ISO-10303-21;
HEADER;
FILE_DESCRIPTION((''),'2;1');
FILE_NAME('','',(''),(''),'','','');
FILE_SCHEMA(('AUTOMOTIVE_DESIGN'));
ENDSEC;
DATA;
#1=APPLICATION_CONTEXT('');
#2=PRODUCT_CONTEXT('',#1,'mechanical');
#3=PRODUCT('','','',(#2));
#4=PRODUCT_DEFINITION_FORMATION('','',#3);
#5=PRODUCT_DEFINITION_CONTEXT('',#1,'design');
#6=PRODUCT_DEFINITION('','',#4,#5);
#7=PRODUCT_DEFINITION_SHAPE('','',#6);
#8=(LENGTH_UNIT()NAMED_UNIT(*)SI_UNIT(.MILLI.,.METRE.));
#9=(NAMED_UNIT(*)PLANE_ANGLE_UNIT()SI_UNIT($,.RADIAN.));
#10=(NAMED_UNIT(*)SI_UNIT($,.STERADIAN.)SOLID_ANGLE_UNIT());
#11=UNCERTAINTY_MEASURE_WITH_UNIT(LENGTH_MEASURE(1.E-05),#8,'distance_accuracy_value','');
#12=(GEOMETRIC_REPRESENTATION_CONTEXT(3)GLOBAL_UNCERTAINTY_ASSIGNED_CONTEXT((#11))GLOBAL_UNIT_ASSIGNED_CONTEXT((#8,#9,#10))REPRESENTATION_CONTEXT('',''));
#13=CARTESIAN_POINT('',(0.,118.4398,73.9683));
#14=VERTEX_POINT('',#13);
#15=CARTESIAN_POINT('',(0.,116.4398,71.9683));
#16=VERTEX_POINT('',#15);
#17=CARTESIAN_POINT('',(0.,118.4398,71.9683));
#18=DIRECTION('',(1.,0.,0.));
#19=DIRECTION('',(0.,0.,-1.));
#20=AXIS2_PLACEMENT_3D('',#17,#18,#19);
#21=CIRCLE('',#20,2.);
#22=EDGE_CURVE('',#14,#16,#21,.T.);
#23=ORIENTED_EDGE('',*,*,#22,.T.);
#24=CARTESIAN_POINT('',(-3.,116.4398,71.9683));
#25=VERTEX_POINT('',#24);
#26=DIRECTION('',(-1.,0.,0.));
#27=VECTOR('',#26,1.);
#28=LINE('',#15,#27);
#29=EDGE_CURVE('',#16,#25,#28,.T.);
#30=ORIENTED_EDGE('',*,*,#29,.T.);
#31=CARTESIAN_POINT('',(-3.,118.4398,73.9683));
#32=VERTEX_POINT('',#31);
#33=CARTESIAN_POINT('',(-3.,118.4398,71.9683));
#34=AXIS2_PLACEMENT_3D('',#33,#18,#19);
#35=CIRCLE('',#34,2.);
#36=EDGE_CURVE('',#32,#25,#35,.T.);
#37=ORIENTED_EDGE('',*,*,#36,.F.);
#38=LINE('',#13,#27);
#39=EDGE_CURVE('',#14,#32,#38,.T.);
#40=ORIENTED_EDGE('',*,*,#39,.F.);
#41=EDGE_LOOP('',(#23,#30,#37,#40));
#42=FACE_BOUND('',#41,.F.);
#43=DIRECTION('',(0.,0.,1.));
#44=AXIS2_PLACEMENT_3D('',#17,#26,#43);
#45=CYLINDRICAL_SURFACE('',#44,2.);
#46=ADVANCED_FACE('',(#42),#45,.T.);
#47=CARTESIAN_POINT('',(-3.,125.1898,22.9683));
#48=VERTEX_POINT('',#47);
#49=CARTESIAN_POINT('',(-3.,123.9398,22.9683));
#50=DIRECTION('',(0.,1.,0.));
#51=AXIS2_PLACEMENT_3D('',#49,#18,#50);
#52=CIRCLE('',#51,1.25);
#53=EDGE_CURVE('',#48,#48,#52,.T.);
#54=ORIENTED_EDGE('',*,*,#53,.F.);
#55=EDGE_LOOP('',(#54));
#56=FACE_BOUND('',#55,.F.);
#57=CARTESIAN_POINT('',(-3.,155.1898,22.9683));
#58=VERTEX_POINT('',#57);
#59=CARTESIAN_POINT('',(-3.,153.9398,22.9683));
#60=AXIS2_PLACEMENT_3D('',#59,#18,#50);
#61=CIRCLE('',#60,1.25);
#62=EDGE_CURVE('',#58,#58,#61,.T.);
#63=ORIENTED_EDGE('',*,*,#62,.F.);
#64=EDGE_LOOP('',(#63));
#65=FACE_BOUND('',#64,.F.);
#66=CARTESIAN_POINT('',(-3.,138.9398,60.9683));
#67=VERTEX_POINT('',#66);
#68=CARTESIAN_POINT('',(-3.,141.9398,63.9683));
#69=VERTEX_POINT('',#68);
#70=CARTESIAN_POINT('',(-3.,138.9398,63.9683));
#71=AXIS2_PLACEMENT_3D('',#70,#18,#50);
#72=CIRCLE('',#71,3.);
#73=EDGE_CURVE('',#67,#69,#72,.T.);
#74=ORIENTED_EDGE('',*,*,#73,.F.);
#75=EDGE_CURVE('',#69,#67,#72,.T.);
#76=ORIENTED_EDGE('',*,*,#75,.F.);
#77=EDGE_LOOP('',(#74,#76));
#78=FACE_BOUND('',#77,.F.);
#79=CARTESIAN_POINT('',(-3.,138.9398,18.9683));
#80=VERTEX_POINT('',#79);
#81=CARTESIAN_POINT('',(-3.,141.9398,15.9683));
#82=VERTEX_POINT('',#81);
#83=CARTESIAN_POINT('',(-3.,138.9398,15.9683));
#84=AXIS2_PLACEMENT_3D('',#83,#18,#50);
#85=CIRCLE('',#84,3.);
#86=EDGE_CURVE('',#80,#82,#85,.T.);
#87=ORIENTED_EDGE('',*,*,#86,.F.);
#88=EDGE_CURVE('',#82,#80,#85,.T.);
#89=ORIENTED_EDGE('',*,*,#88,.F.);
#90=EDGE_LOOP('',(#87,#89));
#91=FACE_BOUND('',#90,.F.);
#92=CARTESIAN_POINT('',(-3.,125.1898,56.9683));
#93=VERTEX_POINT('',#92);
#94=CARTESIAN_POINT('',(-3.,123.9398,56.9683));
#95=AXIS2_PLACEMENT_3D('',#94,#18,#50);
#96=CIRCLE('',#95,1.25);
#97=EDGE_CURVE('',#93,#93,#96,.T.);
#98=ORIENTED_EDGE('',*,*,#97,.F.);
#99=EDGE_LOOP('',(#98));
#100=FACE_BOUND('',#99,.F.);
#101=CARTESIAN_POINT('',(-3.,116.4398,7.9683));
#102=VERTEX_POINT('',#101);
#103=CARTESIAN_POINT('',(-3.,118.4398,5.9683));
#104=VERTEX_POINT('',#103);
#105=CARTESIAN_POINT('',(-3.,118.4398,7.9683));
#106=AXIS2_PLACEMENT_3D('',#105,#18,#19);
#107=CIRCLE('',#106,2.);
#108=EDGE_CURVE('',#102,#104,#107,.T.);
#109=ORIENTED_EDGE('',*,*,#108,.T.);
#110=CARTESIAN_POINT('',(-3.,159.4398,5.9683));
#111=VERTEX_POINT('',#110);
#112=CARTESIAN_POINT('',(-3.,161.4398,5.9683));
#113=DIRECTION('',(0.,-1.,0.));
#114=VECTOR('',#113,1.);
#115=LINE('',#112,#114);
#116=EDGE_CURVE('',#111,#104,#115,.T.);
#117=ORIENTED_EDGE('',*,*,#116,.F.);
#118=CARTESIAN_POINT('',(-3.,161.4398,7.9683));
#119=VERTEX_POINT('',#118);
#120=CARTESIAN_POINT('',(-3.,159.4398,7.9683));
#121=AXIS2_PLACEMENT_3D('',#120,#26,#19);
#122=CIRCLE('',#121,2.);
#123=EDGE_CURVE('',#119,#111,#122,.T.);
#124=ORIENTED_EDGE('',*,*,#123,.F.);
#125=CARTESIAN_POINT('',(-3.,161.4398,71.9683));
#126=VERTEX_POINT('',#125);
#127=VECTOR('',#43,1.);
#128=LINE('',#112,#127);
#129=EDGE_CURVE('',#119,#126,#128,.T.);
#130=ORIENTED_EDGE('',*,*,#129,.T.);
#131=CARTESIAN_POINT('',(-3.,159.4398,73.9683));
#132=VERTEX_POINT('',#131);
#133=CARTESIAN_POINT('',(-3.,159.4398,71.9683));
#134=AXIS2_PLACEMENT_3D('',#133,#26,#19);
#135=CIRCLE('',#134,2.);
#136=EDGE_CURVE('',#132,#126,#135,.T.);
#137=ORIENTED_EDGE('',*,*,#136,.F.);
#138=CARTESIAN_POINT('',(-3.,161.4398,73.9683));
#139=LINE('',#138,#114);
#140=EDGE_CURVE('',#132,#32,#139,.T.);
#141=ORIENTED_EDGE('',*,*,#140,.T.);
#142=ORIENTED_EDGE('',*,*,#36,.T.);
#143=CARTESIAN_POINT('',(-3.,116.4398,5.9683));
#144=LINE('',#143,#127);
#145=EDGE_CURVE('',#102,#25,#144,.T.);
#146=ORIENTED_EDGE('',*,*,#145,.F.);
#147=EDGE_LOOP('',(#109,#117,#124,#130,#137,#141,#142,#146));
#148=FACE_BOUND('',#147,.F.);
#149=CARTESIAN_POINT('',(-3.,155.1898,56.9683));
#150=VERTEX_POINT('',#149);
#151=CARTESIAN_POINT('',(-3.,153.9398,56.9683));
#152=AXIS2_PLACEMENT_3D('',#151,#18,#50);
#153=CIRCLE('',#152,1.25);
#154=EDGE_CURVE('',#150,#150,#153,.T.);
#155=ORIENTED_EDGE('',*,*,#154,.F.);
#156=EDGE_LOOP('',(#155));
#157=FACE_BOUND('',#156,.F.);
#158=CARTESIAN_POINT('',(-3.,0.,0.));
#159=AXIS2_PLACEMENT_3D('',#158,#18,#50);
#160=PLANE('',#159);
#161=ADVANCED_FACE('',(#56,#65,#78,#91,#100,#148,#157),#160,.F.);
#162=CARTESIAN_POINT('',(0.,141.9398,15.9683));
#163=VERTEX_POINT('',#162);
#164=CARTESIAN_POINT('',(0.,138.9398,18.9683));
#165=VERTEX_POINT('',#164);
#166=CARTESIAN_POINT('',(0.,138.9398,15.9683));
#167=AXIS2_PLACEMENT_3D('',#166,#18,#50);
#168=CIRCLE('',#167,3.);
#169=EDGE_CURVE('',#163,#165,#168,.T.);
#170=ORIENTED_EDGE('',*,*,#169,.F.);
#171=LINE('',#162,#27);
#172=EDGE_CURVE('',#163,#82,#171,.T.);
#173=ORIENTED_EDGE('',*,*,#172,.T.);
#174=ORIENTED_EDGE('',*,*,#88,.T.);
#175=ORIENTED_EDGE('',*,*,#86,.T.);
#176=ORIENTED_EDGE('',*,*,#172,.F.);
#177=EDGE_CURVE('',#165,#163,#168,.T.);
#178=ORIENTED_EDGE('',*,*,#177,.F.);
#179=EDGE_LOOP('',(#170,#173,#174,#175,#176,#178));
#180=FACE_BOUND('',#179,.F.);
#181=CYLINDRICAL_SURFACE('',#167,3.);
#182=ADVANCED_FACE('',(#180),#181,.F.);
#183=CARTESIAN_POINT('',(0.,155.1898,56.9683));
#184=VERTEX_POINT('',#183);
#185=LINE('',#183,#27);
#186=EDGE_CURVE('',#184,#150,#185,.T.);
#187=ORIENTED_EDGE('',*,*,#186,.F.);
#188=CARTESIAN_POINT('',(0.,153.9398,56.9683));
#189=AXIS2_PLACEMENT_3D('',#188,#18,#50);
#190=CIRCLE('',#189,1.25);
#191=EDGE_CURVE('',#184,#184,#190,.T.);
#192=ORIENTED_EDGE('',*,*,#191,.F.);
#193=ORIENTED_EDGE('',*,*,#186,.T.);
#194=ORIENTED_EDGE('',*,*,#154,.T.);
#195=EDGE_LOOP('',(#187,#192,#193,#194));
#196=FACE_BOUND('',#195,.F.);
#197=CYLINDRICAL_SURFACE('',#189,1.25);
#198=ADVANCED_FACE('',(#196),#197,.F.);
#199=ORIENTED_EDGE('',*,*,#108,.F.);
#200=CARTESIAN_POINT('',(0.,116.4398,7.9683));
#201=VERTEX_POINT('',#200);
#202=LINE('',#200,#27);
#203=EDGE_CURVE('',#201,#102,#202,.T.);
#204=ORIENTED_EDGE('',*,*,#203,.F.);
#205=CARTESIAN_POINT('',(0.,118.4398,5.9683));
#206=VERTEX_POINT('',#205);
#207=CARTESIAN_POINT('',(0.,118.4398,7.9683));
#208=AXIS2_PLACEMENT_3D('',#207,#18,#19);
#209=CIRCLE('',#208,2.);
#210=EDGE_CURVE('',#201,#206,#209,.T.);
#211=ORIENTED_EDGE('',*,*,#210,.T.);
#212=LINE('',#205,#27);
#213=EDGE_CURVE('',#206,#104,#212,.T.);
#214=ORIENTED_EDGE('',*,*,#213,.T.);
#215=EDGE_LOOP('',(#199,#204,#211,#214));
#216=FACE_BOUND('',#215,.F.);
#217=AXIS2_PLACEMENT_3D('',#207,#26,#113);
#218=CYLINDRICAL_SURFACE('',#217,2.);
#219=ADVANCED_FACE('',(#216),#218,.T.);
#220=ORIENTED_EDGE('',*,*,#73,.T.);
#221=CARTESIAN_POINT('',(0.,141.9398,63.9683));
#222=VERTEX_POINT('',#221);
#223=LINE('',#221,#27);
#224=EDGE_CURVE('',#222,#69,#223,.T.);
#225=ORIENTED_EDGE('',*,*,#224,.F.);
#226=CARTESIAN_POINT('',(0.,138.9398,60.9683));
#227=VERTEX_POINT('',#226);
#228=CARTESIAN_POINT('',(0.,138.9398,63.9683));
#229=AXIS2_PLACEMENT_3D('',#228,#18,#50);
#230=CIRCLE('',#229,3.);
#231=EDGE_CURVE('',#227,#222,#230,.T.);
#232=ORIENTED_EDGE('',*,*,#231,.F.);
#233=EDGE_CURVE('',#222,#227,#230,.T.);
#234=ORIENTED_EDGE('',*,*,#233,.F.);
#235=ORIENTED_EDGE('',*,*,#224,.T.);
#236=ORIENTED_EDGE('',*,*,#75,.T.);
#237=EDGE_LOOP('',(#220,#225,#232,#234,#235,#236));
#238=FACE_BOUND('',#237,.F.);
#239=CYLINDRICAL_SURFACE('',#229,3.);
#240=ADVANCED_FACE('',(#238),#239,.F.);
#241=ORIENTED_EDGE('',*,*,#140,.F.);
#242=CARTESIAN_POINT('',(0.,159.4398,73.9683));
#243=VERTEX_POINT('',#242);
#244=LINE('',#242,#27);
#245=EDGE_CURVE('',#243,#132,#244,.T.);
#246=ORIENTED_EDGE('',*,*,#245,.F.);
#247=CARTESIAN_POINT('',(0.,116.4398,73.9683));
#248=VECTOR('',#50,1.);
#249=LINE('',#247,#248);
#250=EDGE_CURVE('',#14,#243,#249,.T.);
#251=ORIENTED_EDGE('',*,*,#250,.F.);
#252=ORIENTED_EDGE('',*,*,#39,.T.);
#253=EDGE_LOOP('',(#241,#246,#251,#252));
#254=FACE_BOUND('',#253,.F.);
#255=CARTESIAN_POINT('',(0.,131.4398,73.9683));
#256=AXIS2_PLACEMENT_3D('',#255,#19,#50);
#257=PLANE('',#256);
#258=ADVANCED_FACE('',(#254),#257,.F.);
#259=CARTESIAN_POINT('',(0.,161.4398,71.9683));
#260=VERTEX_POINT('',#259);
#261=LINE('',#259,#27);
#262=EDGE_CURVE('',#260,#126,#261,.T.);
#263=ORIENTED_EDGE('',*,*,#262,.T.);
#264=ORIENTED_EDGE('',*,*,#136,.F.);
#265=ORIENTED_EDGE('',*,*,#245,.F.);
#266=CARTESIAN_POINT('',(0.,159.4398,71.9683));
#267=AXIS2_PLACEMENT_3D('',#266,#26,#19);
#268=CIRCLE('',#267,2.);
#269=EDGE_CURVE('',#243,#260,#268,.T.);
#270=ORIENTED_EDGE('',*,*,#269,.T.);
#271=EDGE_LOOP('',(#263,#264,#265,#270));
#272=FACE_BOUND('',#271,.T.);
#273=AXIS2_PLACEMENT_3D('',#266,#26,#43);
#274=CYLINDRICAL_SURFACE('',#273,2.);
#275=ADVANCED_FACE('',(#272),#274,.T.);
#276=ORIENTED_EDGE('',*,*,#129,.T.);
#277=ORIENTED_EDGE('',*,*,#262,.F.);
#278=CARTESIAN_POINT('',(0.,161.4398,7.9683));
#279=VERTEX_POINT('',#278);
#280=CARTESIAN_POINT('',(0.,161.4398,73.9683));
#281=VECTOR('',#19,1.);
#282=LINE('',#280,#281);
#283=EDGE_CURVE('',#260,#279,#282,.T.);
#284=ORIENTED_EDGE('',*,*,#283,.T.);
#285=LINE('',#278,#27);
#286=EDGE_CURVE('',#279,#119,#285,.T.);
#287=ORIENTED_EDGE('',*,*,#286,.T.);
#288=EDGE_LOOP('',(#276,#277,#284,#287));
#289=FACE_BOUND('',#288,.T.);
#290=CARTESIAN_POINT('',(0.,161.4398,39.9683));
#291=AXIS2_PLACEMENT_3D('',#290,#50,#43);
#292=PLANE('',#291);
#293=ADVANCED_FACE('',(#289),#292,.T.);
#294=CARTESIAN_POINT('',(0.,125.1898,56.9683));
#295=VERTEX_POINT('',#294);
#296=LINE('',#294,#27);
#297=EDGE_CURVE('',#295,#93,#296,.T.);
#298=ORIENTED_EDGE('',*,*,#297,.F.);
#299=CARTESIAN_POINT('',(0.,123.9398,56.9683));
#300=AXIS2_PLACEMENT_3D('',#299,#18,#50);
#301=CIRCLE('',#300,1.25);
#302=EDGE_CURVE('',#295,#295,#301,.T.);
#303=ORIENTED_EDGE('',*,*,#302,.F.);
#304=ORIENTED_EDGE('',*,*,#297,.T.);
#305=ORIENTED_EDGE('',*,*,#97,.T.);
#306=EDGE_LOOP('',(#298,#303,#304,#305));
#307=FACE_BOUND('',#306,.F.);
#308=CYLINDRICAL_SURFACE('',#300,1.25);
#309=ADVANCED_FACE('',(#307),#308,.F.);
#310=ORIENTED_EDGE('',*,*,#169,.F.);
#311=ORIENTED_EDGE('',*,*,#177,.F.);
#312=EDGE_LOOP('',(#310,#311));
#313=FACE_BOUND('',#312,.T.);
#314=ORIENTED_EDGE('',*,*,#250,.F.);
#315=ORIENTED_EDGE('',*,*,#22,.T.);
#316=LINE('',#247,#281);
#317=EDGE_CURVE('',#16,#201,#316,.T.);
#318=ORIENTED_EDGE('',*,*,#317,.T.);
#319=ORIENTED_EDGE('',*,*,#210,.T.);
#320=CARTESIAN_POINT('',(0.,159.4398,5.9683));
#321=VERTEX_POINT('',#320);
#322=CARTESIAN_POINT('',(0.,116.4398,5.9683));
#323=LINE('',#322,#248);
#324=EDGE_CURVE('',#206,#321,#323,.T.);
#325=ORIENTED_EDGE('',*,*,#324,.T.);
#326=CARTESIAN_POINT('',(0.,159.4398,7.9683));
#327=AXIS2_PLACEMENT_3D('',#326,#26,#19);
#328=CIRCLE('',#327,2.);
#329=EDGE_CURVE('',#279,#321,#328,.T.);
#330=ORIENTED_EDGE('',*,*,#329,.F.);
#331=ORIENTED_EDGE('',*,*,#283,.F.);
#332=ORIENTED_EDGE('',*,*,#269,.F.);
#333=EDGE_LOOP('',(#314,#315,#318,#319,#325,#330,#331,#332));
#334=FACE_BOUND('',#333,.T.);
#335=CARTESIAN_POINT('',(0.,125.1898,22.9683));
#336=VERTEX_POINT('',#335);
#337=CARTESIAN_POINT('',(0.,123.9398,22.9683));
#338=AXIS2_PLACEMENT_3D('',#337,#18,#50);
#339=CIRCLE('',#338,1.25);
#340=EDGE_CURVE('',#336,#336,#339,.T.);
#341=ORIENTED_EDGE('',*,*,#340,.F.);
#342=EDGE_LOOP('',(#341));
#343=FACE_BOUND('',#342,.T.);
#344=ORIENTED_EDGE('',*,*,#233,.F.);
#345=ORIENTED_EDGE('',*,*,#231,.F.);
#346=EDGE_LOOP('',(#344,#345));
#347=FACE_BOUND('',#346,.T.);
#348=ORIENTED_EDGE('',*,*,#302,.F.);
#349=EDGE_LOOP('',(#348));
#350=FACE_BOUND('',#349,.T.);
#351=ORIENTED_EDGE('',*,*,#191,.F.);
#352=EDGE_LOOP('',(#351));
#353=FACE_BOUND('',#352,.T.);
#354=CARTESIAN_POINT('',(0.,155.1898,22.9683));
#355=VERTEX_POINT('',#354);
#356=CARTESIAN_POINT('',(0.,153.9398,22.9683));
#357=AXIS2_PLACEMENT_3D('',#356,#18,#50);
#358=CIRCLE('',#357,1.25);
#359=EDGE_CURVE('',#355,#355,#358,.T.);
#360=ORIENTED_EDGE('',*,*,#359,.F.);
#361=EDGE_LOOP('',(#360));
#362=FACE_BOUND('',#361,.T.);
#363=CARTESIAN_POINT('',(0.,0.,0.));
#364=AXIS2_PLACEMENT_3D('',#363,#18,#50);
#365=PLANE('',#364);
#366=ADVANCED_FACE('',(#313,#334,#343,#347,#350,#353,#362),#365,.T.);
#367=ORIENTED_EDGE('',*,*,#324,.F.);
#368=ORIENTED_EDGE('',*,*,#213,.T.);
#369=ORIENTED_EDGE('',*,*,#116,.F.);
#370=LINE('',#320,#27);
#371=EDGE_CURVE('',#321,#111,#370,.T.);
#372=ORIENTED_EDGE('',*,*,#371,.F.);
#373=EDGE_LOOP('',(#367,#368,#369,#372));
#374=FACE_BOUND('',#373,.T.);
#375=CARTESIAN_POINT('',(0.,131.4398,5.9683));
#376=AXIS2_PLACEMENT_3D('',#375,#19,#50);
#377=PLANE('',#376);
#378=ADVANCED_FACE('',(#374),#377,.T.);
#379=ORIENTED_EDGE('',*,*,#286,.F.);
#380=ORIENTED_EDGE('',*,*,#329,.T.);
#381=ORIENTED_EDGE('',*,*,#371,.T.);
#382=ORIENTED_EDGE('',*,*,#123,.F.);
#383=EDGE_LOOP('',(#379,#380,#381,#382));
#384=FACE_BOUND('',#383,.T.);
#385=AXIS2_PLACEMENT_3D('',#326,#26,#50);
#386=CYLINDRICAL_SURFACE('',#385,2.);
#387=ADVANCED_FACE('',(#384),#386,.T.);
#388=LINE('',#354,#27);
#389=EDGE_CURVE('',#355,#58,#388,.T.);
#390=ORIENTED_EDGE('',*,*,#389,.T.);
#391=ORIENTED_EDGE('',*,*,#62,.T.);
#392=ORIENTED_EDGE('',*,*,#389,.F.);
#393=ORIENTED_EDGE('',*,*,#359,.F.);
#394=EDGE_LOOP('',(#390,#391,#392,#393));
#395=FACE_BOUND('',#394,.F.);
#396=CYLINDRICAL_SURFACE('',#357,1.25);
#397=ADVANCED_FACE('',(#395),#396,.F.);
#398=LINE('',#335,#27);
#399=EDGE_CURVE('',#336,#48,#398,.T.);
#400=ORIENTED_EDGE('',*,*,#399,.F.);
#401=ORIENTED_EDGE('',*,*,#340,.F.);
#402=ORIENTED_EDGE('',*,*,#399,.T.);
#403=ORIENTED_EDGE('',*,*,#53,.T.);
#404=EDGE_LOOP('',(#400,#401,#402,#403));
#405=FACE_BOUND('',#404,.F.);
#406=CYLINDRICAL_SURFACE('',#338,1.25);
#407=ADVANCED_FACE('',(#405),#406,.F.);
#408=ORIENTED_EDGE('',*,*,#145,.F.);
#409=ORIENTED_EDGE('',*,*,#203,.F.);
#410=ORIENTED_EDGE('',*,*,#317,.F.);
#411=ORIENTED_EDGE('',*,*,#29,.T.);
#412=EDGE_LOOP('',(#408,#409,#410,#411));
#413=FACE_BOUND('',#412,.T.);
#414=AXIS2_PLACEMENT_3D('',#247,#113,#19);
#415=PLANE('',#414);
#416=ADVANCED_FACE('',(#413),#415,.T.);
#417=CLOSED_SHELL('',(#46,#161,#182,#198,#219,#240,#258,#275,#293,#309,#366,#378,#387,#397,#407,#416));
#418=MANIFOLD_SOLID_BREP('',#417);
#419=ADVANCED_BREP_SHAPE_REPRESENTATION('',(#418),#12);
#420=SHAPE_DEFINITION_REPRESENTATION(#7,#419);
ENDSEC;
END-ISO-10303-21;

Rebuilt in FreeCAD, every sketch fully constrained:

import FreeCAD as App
import Part
import Sketcher
from FreeCAD import Vector
Q = App.Units.Quantity


def edges_at(feature, points):
    """Names of the edges that pass closest to the given points."""
    edges = feature.Shape.Edges
    near = lambda p: min(range(len(edges)), key=lambda i: edges[i].distToShape(Part.Vertex(*p))[0])
    return sorted({f"Edge{near(p) + 1}" for p in points})

doc = App.newDocument("Part")
body = doc.addObject("PartDesign::Body", "Body")

sketch1 = body.newObject("Sketcher::SketchObject", "Sketch")
sketch1.AttachmentSupport = (doc.getObject("YZ_Plane"), [""])
sketch1.MapMode = "FlatFace"
sketch1.addGeometry([
    Part.LineSegment(Vector(161.4, 74, 0), Vector(116.4, 74, 0)),
    Part.LineSegment(Vector(116.4, 74, 0), Vector(116.4, 6, 0)),
    Part.LineSegment(Vector(116.4, 6, 0), Vector(161.4, 6, 0)),
    Part.LineSegment(Vector(161.4, 6, 0), Vector(161.4, 74, 0)),
    Part.Circle(Vector(153.9, 57, 0), Vector(0, 0, 1), 1.2),
    Part.Circle(Vector(138.9, 64, 0), Vector(0, 0, 1), 3),
    Part.Circle(Vector(153.9, 23, 0), Vector(0, 0, 1), 1.2),
    Part.Circle(Vector(138.9, 16, 0), Vector(0, 0, 1), 3),
    Part.Circle(Vector(123.9, 57, 0), Vector(0, 0, 1), 1.2),
    Part.Circle(Vector(123.9, 23, 0), Vector(0, 0, 1), 1.2),
], False)
sketch1.addConstraint([
    Sketcher.Constraint("Coincident", 0, 2, 1, 1),
    Sketcher.Constraint("Coincident", 1, 2, 2, 1),
    Sketcher.Constraint("Coincident", 2, 2, 3, 1),
    Sketcher.Constraint("Coincident", 3, 2, 0, 1),
    Sketcher.Constraint("Horizontal", 0),
    Sketcher.Constraint("Vertical", 1),
    Sketcher.Constraint("Horizontal", 2),
    Sketcher.Constraint("Vertical", 3),
    Sketcher.Constraint("Equal", 4, 6),
    Sketcher.Constraint("Equal", 5, 7),
    Sketcher.Constraint("Equal", 6, 8),
    Sketcher.Constraint("Equal", 8, 9),
    Sketcher.Constraint("Horizontal", 4, 3, 8, 3),
    Sketcher.Constraint("Horizontal", 6, 3, 9, 3),
    Sketcher.Constraint("Vertical", 4, 3, 6, 3),
    Sketcher.Constraint("Vertical", 5, 3, 7, 3),
    Sketcher.Constraint("Vertical", 8, 3, 9, 3),
    Sketcher.Constraint("Diameter", 5, Q("6 mm")),
    Sketcher.Constraint("Diameter", 4, Q("2.5 mm")),
    Sketcher.Constraint("DistanceY", 6, 3, 4, 3, Q("34 mm")),
    Sketcher.Constraint("DistanceY", 7, 3, 5, 3, Q("48 mm")),
    Sketcher.Constraint("DistanceY", 8, 3, 0, 2, Q("17 mm")),
    Sketcher.Constraint("DistanceY", 5, 3, 0, 2, Q("10 mm")),
    Sketcher.Constraint("DistanceY", 1, 2, 9, 3, Q("17 mm")),
    Sketcher.Constraint("DistanceX", 0, 2, 8, 3, Q("7.5 mm")),
    Sketcher.Constraint("DistanceX", 6, 3, 2, 2, Q("7.5 mm")),
    Sketcher.Constraint("DistanceX", 0, 2, 0, 1, Q("45 mm")),
    Sketcher.Constraint("DistanceX", 5, 3, 4, 3, Q("15 mm")),
    Sketcher.Constraint("DistanceX", -1, 1, 4, 3, Q("153.9398 mm")),
    Sketcher.Constraint("DistanceY", -1, 1, 4, 3, Q("56.9683 mm")),
])
pad1 = body.newObject("PartDesign::Pad", "Pad")
pad1.Profile = sketch1
pad1.Length = 3
pad1.Reversed = True
doc.recompute()

fillet = body.newObject("PartDesign::Fillet", "Fillet")
fillet.Base = (pad1, edges_at(pad1, [
    (-1.5, 161.44, 73.968),
    (-1.5, 116.44, 73.968),
    (-1.5, 116.44, 5.968),
    (-1.5, 161.44, 5.968),
]))
fillet.Radius = 2

doc.recompute()
